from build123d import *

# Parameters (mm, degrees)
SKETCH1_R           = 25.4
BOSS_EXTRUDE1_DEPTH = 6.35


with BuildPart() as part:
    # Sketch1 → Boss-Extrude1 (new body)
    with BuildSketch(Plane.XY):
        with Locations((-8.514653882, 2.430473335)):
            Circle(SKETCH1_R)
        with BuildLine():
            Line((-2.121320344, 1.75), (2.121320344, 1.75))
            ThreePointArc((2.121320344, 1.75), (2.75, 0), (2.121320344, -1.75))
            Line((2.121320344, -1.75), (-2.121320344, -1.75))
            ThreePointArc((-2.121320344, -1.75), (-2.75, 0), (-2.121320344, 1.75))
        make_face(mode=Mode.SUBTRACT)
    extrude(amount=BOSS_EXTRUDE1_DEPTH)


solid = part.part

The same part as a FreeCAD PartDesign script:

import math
import FreeCAD as App
import Part
import Sketcher
from FreeCAD import Vector
Q = App.Units.Quantity

doc = App.newDocument("Part")
body = doc.addObject("PartDesign::Body", "Body")

# Sketch on XY plane
sketch1 = doc.addObject("Sketcher::SketchObject", "Sketch")
body.addObject(sketch1)
sketch1.AttachmentSupport = (doc.XY_Plane, [""])
sketch1.MapMode = "FlatFace"
sketch1.addGeometry(Part.Circle(Vector(-8.5, 2.4, 0), Vector(0, 0, 1), 25.4), False)
sketch1.addGeometry(Part.ArcOfCircle(Part.Circle(Vector(0, 0, 0), Vector(0, 0, 1), 2.8), math.radians(140), math.radians(220)), False)
sketch1.addGeometry(Part.LineSegment(Vector(-2.1, 1.8, 0), Vector(2.1, 1.8, 0)), False)
sketch1.addGeometry(Part.ArcOfCircle(Part.Circle(Vector(0, 0, 0), Vector(0, 0, 1), 2.8), math.radians(-40), math.radians(40)), False)
sketch1.addGeometry(Part.LineSegment(Vector(2.1, -1.8, 0), Vector(-2.1, -1.8, 0)), False)
sketch1.addConstraint(Sketcher.Constraint("Coincident", 1, 1, 2, 1))
sketch1.addConstraint(Sketcher.Constraint("Coincident", 2, 2, 3, 2))
sketch1.addConstraint(Sketcher.Constraint("Coincident", 3, 1, 4, 1))
sketch1.addConstraint(Sketcher.Constraint("Coincident", 4, 2, 1, 2))
sketch1.addConstraint(Sketcher.Constraint("Horizontal", 2))
sketch1.addConstraint(Sketcher.Constraint("Horizontal", 4))
sketch1.addConstraint(Sketcher.Constraint("Coincident", 1, 3, -1, 1))
sketch1.addConstraint(Sketcher.Constraint("Coincident", 3, 3, -1, 1))
sketch1.addConstraint(Sketcher.Constraint("Equal", 1, 3))
sketch1.addConstraint(Sketcher.Constraint("Vertical", 2, 2, 3, 1))
sketch1.addConstraint(Sketcher.Constraint("Diameter", 0, Q("2 in")))
sketch1.addConstraint(Sketcher.Constraint("Radius", 1, 2.75))
sketch1.addConstraint(Sketcher.Constraint("DistanceX", 2, 1, 2, 2, 4.242641))
sketch1.addConstraint(Sketcher.Constraint("DistanceX", 0, 3, -1, 1, 8.514654))
sketch1.addConstraint(Sketcher.Constraint("DistanceY", -1, 1, 0, 3, 2.430473))
pad1 = doc.addObject("PartDesign::Pad", "Pad")
body.addObject(pad1)
pad1.Profile = sketch1
pad1.Length = Q("0.25 in")

doc.recompute()
